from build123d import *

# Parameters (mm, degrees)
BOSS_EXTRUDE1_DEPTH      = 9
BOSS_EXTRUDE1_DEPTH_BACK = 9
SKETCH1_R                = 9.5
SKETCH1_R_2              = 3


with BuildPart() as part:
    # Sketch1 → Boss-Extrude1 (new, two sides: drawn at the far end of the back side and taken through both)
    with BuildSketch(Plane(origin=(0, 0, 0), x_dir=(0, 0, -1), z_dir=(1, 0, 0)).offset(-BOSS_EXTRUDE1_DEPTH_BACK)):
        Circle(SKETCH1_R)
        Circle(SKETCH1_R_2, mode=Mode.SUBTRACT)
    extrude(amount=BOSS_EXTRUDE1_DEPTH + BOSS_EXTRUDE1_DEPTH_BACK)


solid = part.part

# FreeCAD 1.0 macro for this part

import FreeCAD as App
import Part
import Sketcher
from FreeCAD import Vector
Q = App.Units.Quantity

doc = App.newDocument("Part")
body = doc.addObject("PartDesign::Body", "Body")

# Sketch on YZ plane
sketch1 = body.newObject("Sketcher::SketchObject", "Sketch")
sketch1.AttachmentSupport = (doc.getObject("YZ_Plane"), [""])
sketch1.MapMode = "FlatFace"
sketch1.addGeometry(Part.Circle(Vector(0, 0, 0), Vector(0, 0, 1), 9.5), False)
sketch1.addGeometry(Part.Circle(Vector(0, 0, 0), Vector(0, 0, 1), 3), False)
sketch1.addConstraint(Sketcher.Constraint("Coincident", 0, 3, -1, 1))
sketch1.addConstraint(Sketcher.Constraint("Coincident", 1, 3, -1, 1))
sketch1.addConstraint(Sketcher.Constraint("Diameter", 0, Q("19 mm")))
sketch1.addConstraint(Sketcher.Constraint("Diameter", 1, Q("6 mm")))
pad1 = body.newObject("PartDesign::Pad", "Pad")
pad1.Profile = sketch1
pad1.Type = "TwoLengths"
pad1.Length = 9
pad1.Length2 = 9

doc.recompute()
